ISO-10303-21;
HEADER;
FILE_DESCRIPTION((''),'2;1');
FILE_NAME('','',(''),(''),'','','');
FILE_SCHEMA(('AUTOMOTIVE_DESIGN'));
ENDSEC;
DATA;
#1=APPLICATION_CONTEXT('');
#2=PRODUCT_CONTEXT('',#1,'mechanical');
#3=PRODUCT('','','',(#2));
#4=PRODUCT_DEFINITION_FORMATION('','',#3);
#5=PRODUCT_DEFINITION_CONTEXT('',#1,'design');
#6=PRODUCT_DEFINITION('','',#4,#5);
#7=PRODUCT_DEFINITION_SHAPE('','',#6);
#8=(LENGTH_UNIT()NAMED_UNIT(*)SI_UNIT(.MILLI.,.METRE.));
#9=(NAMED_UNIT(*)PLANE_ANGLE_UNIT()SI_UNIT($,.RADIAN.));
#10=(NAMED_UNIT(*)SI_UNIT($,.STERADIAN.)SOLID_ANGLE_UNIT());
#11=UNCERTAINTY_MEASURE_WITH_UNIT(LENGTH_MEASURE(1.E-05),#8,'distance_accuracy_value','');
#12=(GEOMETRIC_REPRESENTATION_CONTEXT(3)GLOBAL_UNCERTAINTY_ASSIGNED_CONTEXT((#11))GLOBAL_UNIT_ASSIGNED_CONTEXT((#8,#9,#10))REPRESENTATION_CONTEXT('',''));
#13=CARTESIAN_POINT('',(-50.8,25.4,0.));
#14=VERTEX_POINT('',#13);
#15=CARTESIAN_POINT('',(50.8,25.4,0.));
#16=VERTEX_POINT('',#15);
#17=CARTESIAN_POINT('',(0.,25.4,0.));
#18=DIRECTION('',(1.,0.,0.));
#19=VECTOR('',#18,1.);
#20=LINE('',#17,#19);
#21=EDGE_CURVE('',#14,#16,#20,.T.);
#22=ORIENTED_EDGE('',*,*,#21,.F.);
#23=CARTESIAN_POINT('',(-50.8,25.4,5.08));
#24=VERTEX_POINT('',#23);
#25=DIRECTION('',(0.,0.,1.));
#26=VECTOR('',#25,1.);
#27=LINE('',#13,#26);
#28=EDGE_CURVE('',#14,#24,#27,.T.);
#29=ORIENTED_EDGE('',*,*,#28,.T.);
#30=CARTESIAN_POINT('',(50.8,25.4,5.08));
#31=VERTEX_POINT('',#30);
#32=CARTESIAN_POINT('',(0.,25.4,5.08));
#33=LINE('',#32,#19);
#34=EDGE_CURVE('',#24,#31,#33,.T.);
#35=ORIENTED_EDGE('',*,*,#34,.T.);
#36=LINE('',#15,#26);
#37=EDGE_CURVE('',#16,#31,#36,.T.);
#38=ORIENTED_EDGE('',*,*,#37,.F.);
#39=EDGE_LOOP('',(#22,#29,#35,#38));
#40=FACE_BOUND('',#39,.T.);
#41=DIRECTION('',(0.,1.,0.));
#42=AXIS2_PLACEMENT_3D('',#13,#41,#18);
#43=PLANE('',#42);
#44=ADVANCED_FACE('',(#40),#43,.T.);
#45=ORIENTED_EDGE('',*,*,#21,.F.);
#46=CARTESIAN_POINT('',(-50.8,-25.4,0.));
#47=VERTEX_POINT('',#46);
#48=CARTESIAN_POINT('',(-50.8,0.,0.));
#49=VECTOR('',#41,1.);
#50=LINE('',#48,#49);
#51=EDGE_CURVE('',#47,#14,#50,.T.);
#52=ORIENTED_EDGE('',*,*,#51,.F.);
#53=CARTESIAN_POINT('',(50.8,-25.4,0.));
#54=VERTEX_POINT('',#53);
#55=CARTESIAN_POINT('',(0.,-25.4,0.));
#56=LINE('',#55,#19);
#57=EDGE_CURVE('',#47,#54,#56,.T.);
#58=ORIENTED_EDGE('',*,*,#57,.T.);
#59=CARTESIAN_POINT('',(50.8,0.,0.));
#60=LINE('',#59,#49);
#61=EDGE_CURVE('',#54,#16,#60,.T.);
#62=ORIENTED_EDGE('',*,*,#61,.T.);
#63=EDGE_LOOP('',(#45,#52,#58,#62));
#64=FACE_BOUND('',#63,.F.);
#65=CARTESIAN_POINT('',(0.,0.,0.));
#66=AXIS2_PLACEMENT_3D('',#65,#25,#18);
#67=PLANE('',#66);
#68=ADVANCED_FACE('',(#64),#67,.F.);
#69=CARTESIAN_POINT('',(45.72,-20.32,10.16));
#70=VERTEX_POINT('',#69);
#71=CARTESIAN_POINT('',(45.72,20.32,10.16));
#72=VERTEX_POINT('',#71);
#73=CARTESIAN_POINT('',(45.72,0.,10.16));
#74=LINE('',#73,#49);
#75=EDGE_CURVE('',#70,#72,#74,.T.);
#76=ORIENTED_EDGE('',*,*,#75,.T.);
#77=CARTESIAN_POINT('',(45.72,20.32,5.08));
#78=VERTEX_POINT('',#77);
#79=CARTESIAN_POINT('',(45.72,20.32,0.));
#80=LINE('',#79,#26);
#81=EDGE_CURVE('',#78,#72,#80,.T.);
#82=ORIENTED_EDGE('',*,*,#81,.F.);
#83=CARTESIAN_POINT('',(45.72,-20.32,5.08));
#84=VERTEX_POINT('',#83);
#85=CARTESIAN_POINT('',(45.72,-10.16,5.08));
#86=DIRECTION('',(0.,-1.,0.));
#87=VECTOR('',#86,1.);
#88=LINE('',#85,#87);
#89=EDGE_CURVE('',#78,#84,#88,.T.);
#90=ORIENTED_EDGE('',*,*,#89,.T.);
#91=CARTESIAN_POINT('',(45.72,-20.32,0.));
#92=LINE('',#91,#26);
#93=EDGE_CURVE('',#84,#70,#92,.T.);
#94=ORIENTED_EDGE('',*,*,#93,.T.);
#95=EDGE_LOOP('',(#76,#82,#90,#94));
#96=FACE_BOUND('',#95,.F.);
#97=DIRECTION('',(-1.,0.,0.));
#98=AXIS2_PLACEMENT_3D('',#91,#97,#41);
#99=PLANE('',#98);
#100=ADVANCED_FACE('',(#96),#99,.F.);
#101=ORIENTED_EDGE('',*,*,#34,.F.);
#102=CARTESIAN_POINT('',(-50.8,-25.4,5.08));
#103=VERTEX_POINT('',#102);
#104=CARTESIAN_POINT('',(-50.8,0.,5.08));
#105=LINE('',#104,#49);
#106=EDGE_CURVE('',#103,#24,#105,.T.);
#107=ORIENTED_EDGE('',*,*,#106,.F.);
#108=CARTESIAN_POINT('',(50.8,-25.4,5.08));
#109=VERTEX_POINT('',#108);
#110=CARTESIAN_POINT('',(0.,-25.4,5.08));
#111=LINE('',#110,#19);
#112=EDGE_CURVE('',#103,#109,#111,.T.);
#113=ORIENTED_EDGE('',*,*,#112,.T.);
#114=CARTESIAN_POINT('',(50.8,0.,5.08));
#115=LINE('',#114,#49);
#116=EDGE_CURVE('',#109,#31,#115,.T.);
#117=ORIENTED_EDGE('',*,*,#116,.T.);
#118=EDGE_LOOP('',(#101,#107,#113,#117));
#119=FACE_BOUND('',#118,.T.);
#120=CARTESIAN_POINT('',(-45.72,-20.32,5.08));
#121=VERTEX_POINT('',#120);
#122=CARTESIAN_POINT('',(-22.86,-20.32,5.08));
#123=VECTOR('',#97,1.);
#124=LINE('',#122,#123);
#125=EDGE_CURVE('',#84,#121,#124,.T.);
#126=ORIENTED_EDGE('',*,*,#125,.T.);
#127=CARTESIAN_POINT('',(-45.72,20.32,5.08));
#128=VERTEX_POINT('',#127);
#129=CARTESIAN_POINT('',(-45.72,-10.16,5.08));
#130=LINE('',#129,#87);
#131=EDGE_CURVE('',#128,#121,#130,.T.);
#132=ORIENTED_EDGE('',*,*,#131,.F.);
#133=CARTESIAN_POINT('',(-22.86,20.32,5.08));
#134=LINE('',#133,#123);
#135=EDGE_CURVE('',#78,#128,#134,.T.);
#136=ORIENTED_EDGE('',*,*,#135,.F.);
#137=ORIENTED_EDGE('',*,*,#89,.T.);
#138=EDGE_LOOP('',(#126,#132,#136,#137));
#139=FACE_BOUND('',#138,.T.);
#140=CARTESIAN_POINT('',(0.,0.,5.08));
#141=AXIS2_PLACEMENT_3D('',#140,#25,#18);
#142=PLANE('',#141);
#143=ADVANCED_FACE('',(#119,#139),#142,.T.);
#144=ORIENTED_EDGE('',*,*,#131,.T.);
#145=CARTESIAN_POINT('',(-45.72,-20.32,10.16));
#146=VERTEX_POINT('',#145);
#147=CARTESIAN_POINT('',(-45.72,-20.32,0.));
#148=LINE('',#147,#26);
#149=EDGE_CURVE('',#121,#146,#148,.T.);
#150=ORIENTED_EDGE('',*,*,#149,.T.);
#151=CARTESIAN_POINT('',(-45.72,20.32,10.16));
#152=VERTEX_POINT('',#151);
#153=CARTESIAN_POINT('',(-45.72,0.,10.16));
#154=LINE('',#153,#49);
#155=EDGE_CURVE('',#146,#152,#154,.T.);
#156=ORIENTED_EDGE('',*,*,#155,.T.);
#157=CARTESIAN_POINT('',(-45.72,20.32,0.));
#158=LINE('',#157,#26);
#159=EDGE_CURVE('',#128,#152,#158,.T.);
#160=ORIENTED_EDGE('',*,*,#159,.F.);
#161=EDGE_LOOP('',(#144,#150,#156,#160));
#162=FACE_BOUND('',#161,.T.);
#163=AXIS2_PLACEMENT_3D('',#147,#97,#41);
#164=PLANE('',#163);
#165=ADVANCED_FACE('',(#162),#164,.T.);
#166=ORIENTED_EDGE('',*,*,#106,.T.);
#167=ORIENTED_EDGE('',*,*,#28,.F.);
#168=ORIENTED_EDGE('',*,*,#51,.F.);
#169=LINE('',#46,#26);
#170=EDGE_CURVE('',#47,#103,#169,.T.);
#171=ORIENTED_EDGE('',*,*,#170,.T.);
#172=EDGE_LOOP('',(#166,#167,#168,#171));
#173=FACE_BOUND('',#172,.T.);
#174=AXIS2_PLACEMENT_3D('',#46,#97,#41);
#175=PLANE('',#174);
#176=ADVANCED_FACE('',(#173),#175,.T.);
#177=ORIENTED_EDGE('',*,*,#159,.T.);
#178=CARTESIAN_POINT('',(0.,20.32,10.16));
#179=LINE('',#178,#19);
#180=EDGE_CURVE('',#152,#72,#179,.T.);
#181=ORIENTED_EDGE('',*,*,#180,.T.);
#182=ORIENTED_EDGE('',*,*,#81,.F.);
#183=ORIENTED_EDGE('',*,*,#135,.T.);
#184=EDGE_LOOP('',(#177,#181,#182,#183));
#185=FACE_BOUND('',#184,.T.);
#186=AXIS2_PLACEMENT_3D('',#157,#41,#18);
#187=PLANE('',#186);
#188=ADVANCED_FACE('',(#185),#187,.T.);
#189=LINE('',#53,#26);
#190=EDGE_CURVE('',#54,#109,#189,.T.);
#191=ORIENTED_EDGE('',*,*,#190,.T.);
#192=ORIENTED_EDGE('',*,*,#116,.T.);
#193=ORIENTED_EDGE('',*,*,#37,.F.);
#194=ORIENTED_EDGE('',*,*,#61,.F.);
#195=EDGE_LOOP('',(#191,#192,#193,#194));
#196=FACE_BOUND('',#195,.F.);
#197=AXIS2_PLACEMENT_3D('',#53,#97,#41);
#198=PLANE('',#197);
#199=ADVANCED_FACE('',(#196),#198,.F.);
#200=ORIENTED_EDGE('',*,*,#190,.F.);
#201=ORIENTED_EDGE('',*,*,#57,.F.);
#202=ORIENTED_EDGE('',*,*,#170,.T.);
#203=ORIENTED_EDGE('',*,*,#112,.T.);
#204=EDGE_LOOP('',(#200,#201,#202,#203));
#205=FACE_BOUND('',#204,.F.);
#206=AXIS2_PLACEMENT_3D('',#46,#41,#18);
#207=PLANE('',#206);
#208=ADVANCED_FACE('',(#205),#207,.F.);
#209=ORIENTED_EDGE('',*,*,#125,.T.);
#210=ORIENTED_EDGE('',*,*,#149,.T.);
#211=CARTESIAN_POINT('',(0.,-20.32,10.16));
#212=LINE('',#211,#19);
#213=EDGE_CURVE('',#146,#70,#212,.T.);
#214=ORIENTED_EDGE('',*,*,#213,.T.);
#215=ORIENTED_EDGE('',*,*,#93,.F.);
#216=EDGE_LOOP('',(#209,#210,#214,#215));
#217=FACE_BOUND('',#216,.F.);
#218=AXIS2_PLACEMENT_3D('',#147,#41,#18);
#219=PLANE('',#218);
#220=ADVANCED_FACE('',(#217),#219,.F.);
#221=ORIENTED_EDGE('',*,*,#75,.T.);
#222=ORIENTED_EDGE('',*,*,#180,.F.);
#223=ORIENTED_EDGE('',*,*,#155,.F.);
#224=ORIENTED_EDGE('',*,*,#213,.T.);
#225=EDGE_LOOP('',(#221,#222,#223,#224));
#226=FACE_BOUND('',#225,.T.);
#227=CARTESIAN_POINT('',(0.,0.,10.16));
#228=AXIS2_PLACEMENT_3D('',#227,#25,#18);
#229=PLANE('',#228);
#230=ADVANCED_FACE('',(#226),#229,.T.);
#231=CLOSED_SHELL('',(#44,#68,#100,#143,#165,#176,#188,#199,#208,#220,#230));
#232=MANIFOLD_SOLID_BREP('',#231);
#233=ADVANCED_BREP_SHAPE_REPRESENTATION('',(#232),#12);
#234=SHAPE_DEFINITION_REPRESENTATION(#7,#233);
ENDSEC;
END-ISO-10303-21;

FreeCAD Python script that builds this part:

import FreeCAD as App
import Part
import Sketcher
Q = App.Units.Quantity

doc = App.newDocument("Part")
body = doc.addObject("PartDesign::Body", "Body")

# Sketch on XY plane
sketch1 = body.newObject("Sketcher::SketchObject", "Sketch")
sketch1.AttachmentSupport = (doc.getObject("XY_Plane"), [""])
sketch1.MapMode = "FlatFace"
sketch1.addGeometry(Part.LineSegment(App.Vector(-45.72, 20.32, 0), App.Vector(-45.72, -20.32, 0)), False)
sketch1.addGeometry(Part.LineSegment(App.Vector(-45.72, -20.32, 0), App.Vector(45.72, -20.32, 0)), False)
sketch1.addGeometry(Part.LineSegment(App.Vector(45.72, -20.32, 0), App.Vector(45.72, 20.32, 0)), False)
sketch1.addGeometry(Part.LineSegment(App.Vector(45.72, 20.32, 0), App.Vector(-45.72, 20.32, 0)), False)
sketch1.addConstraint(Sketcher.Constraint("Coincident", 0, 2, 1, 1))
sketch1.addConstraint(Sketcher.Constraint("Coincident", 1, 2, 2, 1))
sketch1.addConstraint(Sketcher.Constraint("Coincident", 2, 2, 3, 1))
sketch1.addConstraint(Sketcher.Constraint("Coincident", 3, 2, 0, 1))
sketch1.addConstraint(Sketcher.Constraint("Vertical", 0))
sketch1.addConstraint(Sketcher.Constraint("Horizontal", 1))
sketch1.addConstraint(Sketcher.Constraint("Vertical", 2))
sketch1.addConstraint(Sketcher.Constraint("Horizontal", 3))
sketch1.addConstraint(Sketcher.Constraint("Symmetric", 0, 2, 2, 2, -1, 1))
sketch1.addConstraint(Sketcher.Constraint("DistanceX", 1, 1, 1, 2, Q("3.6 in")))
sketch1.addConstraint(Sketcher.Constraint("DistanceY", 0, 2, 0, 1, Q("1.6 in")))
pad1 = body.newObject("PartDesign::Pad", "Pad")
pad1.Profile = sketch1
pad1.Length = Q("0.2 in")

# Sketch on XY plane
sketch2 = body.newObject("Sketcher::SketchObject", "Sketch001")
sketch2.AttachmentSupport = (doc.getObject("XY_Plane"), [""])
sketch2.MapMode = "FlatFace"
sketch2.addGeometry(Part.LineSegment(App.Vector(-50.8, 25.4, 0), App.Vector(-50.8, -25.4, 0)), False)
sketch2.addGeometry(Part.LineSegment(App.Vector(-50.8, -25.4, 0), App.Vector(50.8, -25.4, 0)), False)
sketch2.addGeometry(Part.LineSegment(App.Vector(50.8, -25.4, 0), App.Vector(50.8, 25.4, 0)), False)
sketch2.addGeometry(Part.LineSegment(App.Vector(50.8, 25.4, 0), App.Vector(-50.8, 25.4, 0)), False)
sketch2.addGeometry(Part.LineSegment(App.Vector(45.72, -20.32, 0), App.Vector(-45.72, -20.32, 0)), False)
sketch2.addGeometry(Part.LineSegment(App.Vector(-45.72, -20.32, 0), App.Vector(-45.72, 20.32, 0)), False)
sketch2.addGeometry(Part.LineSegment(App.Vector(-45.72, 20.32, 0), App.Vector(45.72, 20.32, 0)), False)
sketch2.addGeometry(Part.LineSegment(App.Vector(45.72, 20.32, 0), App.Vector(45.72, -20.32, 0)), False)
sketch2.addConstraint(Sketcher.Constraint("Coincident", 0, 2, 1, 1))
sketch2.addConstraint(Sketcher.Constraint("Coincident", 1, 2, 2, 1))
sketch2.addConstraint(Sketcher.Constraint("Coincident", 2, 2, 3, 1))
sketch2.addConstraint(Sketcher.Constraint("Coincident", 3, 2, 0, 1))
sketch2.addConstraint(Sketcher.Constraint("Coincident", 4, 2, 5, 1))
sketch2.addConstraint(Sketcher.Constraint("Coincident", 5, 2, 6, 1))
sketch2.addConstraint(Sketcher.Constraint("Coincident", 6, 2, 7, 1))
sketch2.addConstraint(Sketcher.Constraint("Coincident", 7, 2, 4, 1))
sketch2.addConstraint(Sketcher.Constraint("Vertical", 0))
sketch2.addConstraint(Sketcher.Constraint("Horizontal", 1))
sketch2.addConstraint(Sketcher.Constraint("Vertical", 2))
sketch2.addConstraint(Sketcher.Constraint("Horizontal", 3))
sketch2.addConstraint(Sketcher.Constraint("Horizontal", 4))
sketch2.addConstraint(Sketcher.Constraint("Vertical", 5))
sketch2.addConstraint(Sketcher.Constraint("Horizontal", 6))
sketch2.addConstraint(Sketcher.Constraint("Vertical", 7))
sketch2.addConstraint(Sketcher.Constraint("Symmetric", 0, 2, 2, 2, -1, 1))
sketch2.addConstraint(Sketcher.Constraint("Symmetric", 4, 2, 6, 2, -1, 1))
sketch2.addConstraint(Sketcher.Constraint("DistanceX", 1, 1, 1, 2, Q("4 in")))
sketch2.addConstraint(Sketcher.Constraint("DistanceY", 0, 2, 0, 1, Q("2 in")))
sketch2.addConstraint(Sketcher.Constraint("DistanceX", 4, 2, 4, 1, Q("3.6 in")))
sketch2.addConstraint(Sketcher.Constraint("DistanceY", 5, 1, 5, 2, Q("1.6 in")))
pad2 = body.newObject("PartDesign::Pad", "Pad001")
pad2.Profile = sketch2
pad2.Length = Q("0.2 in")

# Sketch on XY plane
sketch3 = body.newObject("Sketcher::SketchObject", "Sketch002")
sketch3.AttachmentSupport = (doc.getObject("XY_Plane"), [""])
sketch3.MapMode = "FlatFace"
sketch3.addGeometry(Part.LineSegment(App.Vector(-45.72, 20.32, 0), App.Vector(-45.72, -20.32, 0)), False)
sketch3.addGeometry(Part.LineSegment(App.Vector(-45.72, -20.32, 0), App.Vector(45.72, -20.32, 0)), False)
sketch3.addGeometry(Part.LineSegment(App.Vector(45.72, -20.32, 0), App.Vector(45.72, 20.32, 0)), False)
sketch3.addGeometry(Part.LineSegment(App.Vector(45.72, 20.32, 0), App.Vector(-45.72, 20.32, 0)), False)
sketch3.addConstraint(Sketcher.Constraint("Coincident", 0, 2, 1, 1))
sketch3.addConstraint(Sketcher.Constraint("Coincident", 1, 2, 2, 1))
sketch3.addConstraint(Sketcher.Constraint("Coincident", 2, 2, 3, 1))
sketch3.addConstraint(Sketcher.Constraint("Coincident", 3, 2, 0, 1))
sketch3.addConstraint(Sketcher.Constraint("Vertical", 0))
sketch3.addConstraint(Sketcher.Constraint("Horizontal", 1))
sketch3.addConstraint(Sketcher.Constraint("Vertical", 2))
sketch3.addConstraint(Sketcher.Constraint("Horizontal", 3))
sketch3.addConstraint(Sketcher.Constraint("Symmetric", 0, 2, 2, 2, -1, 1))
sketch3.addConstraint(Sketcher.Constraint("DistanceX", 1, 1, 1, 2, Q("3.6 in")))
sketch3.addConstraint(Sketcher.Constraint("DistanceY", 0, 2, 0, 1, Q("1.6 in")))
pad3 = body.newObject("PartDesign::Pad", "Pad002")
pad3.Profile = sketch3
pad3.Length = Q("0.4 in")

doc.recompute()
